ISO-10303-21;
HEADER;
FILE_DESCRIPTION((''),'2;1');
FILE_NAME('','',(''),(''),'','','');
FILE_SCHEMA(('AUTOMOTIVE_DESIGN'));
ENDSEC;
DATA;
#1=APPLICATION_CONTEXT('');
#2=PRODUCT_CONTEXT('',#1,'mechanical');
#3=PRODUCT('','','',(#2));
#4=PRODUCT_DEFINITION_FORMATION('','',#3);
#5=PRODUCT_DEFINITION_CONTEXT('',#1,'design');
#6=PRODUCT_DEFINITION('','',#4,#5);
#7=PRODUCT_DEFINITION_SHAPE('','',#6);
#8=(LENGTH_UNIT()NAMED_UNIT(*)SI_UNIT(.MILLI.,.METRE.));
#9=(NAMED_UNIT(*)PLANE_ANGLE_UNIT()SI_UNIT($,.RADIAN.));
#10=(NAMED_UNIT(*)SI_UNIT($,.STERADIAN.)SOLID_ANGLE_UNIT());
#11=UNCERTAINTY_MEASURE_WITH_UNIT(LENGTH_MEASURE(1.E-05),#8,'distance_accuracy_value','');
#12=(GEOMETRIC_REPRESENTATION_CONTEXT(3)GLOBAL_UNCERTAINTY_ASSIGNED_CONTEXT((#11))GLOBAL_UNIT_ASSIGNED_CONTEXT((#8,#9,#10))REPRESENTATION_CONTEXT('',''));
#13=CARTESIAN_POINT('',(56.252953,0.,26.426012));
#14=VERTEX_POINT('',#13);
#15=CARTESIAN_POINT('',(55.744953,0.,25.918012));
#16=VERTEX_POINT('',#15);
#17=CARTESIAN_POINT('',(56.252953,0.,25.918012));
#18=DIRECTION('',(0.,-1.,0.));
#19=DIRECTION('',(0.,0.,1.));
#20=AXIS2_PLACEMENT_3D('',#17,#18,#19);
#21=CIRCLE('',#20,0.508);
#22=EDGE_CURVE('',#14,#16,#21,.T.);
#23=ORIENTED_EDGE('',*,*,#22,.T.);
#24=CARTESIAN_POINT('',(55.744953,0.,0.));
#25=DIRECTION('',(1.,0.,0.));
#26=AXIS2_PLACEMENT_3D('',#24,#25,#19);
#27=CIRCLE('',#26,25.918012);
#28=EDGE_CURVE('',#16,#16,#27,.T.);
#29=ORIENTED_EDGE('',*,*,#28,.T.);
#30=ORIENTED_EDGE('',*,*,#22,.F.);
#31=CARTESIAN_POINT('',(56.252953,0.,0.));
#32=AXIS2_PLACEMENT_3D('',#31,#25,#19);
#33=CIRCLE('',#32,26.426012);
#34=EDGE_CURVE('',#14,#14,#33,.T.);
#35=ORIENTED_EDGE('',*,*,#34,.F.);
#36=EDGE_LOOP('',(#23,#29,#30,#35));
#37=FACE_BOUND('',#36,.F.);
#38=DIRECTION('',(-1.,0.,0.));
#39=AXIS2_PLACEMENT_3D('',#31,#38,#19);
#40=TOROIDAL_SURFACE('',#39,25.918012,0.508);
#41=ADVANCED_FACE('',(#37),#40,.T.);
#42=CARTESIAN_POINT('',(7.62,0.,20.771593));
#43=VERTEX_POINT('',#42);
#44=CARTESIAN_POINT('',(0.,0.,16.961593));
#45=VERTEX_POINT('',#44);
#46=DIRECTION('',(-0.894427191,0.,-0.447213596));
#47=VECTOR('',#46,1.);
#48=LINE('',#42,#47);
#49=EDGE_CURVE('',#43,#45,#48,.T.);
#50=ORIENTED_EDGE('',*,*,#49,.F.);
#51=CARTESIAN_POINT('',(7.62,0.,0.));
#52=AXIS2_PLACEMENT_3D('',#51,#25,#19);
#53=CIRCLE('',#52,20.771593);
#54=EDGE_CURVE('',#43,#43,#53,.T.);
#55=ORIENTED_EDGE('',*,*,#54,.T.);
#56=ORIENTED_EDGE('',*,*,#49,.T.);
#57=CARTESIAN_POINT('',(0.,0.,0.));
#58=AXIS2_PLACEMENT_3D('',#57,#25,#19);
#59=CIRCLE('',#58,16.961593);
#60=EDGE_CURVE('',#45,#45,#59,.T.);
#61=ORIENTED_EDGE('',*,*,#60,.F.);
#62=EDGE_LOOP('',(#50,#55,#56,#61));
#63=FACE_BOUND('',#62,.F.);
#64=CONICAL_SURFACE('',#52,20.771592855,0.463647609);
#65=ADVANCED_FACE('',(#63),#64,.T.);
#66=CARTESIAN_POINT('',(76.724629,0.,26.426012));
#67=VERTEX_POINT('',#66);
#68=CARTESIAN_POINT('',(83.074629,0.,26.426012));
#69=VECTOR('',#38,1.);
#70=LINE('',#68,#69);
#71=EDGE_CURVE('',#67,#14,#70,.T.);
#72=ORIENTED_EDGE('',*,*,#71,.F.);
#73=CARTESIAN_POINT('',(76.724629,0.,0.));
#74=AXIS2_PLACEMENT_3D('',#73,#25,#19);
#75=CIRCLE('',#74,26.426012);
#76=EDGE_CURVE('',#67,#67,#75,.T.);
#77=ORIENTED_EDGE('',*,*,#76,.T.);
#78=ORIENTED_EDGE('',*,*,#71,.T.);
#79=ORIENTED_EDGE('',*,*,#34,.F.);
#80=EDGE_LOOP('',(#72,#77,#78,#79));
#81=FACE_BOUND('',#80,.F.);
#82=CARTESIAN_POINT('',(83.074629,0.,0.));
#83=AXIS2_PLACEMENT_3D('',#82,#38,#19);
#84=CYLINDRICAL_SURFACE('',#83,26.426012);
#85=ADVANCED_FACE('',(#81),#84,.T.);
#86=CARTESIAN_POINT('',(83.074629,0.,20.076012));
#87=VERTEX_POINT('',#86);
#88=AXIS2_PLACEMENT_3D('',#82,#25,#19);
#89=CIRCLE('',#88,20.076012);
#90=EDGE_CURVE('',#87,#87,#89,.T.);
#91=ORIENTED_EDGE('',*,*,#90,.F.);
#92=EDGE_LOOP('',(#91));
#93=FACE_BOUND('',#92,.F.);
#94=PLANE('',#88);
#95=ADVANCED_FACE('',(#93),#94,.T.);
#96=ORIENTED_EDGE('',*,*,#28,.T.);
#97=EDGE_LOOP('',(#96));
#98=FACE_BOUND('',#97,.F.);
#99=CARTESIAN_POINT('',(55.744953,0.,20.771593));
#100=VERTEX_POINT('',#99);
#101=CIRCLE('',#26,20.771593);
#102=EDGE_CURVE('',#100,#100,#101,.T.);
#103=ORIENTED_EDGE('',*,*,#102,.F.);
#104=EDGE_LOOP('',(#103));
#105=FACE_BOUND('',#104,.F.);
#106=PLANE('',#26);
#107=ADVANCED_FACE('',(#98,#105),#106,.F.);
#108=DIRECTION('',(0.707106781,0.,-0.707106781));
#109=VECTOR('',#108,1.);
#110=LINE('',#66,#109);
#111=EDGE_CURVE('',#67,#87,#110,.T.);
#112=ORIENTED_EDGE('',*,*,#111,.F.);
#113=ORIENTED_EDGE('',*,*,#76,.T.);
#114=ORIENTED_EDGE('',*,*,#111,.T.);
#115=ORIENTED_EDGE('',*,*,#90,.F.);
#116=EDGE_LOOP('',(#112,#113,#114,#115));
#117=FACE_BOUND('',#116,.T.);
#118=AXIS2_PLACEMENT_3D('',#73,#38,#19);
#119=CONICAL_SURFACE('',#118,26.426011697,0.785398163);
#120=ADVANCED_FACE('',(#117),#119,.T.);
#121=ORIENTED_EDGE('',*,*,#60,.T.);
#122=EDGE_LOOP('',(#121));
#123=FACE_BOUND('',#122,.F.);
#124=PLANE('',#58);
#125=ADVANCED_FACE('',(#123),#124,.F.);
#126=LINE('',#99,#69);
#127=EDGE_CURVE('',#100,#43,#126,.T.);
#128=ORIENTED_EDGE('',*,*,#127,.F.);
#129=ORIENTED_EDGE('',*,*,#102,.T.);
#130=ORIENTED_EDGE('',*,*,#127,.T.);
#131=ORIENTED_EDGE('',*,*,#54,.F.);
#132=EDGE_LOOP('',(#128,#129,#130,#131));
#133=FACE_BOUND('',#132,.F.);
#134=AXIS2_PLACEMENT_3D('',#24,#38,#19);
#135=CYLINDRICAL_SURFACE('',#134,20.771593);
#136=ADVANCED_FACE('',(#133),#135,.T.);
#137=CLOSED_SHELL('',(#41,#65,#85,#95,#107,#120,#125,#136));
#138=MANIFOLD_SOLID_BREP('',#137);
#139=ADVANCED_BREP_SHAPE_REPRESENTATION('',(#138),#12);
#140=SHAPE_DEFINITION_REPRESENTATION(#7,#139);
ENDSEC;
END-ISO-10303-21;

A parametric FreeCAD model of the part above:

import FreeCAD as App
import Part
import Sketcher
from FreeCAD import Vector
Q = App.Units.Quantity


def edges_at(feature, points):
    """Names of the edges that pass closest to the given points."""
    edges = feature.Shape.Edges
    near = lambda p: min(range(len(edges)), key=lambda i: edges[i].distToShape(Part.Vertex(*p))[0])
    return sorted({f"Edge{near(p) + 1}" for p in points})


def add_polygon(sketch, points):
    """Adds a closed chain of lines whose ends are joined by coincident constraints."""
    first, n = sketch.GeometryCount, len(points)
    for a, b in zip(points, points[1:] + points[:1]):
        sketch.addGeometry(Part.LineSegment(App.Vector(*a, 0), App.Vector(*b, 0)), False)
    for i in range(n):
        sketch.addConstraint(Sketcher.Constraint("Coincident", first + i, 2, first + (i + 1) % n, 1))

doc = App.newDocument("Part")
body = doc.addObject("PartDesign::Body", "Body")

# Sketch on XZ plane
sketch1 = doc.addObject("Sketcher::SketchObject", "Sketch")
body.addObject(sketch1)
sketch1.AttachmentSupport = (doc.XZ_Plane, [""])
sketch1.MapMode = "FlatFace"
add_polygon(sketch1, [(56, 21), (0, 21), (0, 0), (83, 0), (83, 26), (56, 26)])  # lines 0-5
sketch1.addConstraint(Sketcher.Constraint("Horizontal", 0))
sketch1.addConstraint(Sketcher.Constraint("Vertical", 1))
sketch1.addConstraint(Sketcher.Constraint("Horizontal", 2))
sketch1.addConstraint(Sketcher.Constraint("Vertical", 3))
sketch1.addConstraint(Sketcher.Constraint("Horizontal", 4))
sketch1.addConstraint(Sketcher.Constraint("Vertical", 5))
sketch1.addConstraint(Sketcher.Constraint("Coincident", 1, 2, -1, 1))
sketch1.addConstraint(Sketcher.Constraint("DistanceX", 2, 1, 2, 2, Q("83.074629 mm")))
sketch1.addConstraint(Sketcher.Constraint("DistanceY", 3, 1, 3, 2, Q("26.426012 mm")))
sketch1.addConstraint(Sketcher.Constraint("DistanceY", 5, 2, 5, 1, Q("5.654419 mm")))
sketch1.addConstraint(Sketcher.Constraint("DistanceX", 0, 2, 0, 1, Q("55.744953 mm")))
revolution = doc.addObject("PartDesign::Revolution", "Revolution")
body.addObject(revolution)
revolution.Profile = sketch1
revolution.ReferenceAxis = (sketch1, ["H_Axis"])
revolution.Angle = 360
doc.recompute()

fillet = doc.addObject("PartDesign::Fillet", "Fillet")
body.addObject(fillet)
fillet.Base = (revolution, edges_at(revolution, [(55.745, 0, -26.426)]))
fillet.Radius = Q("0.02 in")
doc.recompute()

chamfer = doc.addObject("PartDesign::Chamfer", "Chamfer")
body.addObject(chamfer)
chamfer.Base = (fillet, edges_at(fillet, [(83.075, 0, -26.426)]))
chamfer.Size = Q("0.25 in")
doc.recompute()

chamfer2 = doc.addObject("PartDesign::Chamfer", "Chamfer001")
body.addObject(chamfer2)
chamfer2.Base = (chamfer, edges_at(chamfer, [(0, 0, -20.772)]))
chamfer2.ChamferType = "Two distances"
chamfer2.Size = Q("0.3 in")
chamfer2.Size2 = Q("0.15 in")

doc.recompute()
